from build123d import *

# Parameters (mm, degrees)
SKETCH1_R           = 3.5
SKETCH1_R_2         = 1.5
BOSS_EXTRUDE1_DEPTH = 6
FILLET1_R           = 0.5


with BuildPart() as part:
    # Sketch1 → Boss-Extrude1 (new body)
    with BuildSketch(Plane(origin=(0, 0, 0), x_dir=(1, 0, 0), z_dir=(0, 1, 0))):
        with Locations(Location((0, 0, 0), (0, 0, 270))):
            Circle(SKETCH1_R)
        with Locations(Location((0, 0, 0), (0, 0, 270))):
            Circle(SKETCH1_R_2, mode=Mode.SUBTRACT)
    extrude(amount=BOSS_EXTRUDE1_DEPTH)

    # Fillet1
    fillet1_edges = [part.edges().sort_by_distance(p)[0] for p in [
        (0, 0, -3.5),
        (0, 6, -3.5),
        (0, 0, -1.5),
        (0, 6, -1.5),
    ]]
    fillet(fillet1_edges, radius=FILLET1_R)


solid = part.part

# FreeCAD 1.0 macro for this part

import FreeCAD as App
import Part
import Sketcher

V = App.Vector
Q = App.Units.Quantity


def edges_at(feature, points):
    """Names of the edges that pass closest to the given points."""
    edges = feature.Shape.Edges
    near = lambda p: min(range(len(edges)), key=lambda i: edges[i].distToShape(Part.Vertex(*p))[0])
    return sorted({f"Edge{near(p) + 1}" for p in points})

doc = App.newDocument("Part")
body = doc.addObject("PartDesign::Body", "Body")

# Sketch on XZ plane
sketch1 = body.newObject("Sketcher::SketchObject", "Sketch")
sketch1.AttachmentSupport = (doc.getObject("XZ_Plane"), [""])
sketch1.MapMode = "FlatFace"
sketch1.addGeometry(Part.Circle(V(0, 0, 0), V(0, 0, 1), 3.5), False)
sketch1.addGeometry(Part.Circle(V(0, 0, 0), V(0, 0, 1), 1.5), False)
sketch1.addConstraint(Sketcher.Constraint("Coincident", 0, 3, -1, 1))
sketch1.addConstraint(Sketcher.Constraint("Coincident", 1, 3, -1, 1))
sketch1.addConstraint(Sketcher.Constraint("Diameter", 0, Q("7 mm")))
sketch1.addConstraint(Sketcher.Constraint("Diameter", 1, Q("3 mm")))
pad1 = body.newObject("PartDesign::Pad", "Pad")
pad1.Profile = sketch1
pad1.Length = 6
pad1.Reversed = True
doc.recompute()

fillet = body.newObject("PartDesign::Fillet", "Fillet")
fillet.Base = (pad1, edges_at(pad1, [
    (0, 0, -3.5),
    (0, 6, -3.5),
    (0, 0, -1.5),
    (0, 6, -1.5),
]))
fillet.Radius = 0.5

doc.recompute()
